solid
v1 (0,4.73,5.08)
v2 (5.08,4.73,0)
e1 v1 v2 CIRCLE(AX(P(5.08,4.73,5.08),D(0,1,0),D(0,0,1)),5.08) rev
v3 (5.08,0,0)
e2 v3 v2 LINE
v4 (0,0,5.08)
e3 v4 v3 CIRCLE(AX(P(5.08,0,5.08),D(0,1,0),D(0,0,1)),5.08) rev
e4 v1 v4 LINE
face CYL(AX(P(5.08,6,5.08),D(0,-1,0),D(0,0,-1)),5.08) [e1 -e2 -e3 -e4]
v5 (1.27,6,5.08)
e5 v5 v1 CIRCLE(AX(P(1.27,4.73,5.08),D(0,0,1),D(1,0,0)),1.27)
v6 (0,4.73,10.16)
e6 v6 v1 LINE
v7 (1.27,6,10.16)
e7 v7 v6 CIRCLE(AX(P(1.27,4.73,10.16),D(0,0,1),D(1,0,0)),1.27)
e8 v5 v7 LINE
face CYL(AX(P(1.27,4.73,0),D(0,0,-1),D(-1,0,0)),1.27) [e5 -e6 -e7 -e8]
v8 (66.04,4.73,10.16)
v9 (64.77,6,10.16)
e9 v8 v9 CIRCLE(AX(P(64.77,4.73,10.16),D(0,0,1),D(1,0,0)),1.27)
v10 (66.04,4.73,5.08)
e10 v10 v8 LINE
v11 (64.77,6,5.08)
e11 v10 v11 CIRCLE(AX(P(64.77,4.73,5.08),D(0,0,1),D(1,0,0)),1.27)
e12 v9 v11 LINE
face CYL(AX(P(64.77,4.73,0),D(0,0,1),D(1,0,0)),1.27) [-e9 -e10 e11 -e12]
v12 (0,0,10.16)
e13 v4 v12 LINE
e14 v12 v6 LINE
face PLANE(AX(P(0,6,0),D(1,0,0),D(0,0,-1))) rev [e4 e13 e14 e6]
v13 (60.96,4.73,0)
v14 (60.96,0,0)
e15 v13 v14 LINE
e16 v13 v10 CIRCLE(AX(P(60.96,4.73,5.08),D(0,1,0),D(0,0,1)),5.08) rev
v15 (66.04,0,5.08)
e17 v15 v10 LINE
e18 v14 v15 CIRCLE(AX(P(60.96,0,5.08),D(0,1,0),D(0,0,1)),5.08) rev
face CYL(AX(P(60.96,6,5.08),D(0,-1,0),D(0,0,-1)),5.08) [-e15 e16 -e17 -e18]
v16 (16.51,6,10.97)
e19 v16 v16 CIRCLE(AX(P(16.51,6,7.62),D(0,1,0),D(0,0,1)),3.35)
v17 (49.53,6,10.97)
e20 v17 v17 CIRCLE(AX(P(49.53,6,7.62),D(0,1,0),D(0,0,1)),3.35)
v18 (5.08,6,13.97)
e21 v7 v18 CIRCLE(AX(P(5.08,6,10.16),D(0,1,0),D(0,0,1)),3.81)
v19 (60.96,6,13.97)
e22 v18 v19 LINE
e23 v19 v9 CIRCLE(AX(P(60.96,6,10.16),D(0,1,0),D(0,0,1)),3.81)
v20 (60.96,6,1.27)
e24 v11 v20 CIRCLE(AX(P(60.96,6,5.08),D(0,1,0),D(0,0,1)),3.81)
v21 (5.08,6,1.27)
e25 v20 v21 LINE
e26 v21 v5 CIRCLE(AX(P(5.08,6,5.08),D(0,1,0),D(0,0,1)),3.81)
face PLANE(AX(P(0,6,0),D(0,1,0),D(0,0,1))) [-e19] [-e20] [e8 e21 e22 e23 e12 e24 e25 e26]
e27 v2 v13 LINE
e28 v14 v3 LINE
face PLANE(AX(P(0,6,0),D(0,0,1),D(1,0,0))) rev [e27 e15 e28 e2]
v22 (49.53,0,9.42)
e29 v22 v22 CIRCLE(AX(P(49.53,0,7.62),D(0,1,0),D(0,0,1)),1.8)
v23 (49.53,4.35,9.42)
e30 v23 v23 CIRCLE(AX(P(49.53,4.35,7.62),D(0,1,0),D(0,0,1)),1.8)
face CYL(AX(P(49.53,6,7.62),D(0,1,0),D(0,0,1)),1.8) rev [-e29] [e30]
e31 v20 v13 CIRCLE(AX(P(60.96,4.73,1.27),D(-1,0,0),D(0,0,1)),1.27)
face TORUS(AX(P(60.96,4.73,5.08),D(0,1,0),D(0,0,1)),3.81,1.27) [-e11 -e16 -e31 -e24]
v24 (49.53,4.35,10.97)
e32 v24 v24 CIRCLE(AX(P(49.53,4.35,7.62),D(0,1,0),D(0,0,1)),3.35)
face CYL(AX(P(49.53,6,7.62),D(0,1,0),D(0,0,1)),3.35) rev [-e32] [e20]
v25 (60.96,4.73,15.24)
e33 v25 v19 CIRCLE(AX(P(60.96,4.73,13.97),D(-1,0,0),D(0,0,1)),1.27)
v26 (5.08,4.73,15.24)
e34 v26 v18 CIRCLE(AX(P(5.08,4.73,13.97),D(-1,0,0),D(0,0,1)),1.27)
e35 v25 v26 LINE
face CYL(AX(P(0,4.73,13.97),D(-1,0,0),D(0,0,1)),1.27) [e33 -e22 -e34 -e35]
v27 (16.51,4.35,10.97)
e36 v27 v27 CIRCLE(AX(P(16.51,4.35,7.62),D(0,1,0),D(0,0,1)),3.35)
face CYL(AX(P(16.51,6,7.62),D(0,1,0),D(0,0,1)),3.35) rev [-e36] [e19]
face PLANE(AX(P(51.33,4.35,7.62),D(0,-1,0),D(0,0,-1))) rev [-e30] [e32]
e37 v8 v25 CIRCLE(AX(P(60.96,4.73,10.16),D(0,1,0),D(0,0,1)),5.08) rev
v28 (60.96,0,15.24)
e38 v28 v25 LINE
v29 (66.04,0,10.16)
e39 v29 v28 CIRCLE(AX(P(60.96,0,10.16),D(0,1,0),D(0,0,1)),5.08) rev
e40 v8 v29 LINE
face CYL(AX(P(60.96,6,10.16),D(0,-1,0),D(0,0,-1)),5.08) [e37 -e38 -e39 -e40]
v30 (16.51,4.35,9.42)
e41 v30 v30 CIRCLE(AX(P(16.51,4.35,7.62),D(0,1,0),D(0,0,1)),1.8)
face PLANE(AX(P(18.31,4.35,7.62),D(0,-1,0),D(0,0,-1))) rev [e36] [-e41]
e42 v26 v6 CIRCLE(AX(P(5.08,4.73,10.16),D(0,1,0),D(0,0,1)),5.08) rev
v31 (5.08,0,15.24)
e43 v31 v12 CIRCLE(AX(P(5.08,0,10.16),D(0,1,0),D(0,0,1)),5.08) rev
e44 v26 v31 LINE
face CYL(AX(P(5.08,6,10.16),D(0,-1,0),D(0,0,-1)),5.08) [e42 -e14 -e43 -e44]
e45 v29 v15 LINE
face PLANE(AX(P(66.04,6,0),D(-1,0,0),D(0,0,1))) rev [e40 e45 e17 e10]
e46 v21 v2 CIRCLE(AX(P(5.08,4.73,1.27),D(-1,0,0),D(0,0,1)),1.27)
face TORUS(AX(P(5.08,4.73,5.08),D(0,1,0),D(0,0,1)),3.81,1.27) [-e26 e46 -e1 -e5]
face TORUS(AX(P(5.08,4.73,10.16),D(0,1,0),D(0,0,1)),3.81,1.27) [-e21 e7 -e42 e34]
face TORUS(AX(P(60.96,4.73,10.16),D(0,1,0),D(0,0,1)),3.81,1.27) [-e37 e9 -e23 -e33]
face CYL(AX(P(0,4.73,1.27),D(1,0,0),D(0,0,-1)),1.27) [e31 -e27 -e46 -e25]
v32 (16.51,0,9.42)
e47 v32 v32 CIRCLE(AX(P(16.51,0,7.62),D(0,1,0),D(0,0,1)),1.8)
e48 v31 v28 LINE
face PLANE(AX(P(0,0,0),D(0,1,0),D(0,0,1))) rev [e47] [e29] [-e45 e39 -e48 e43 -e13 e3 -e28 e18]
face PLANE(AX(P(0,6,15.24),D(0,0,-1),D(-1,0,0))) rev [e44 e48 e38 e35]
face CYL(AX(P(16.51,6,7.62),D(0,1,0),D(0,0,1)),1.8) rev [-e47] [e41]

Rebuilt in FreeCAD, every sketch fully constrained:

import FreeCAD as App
import Part
import Sketcher
Q = App.Units.Quantity


def edges_at(feature, points):
    """Names of the edges that pass closest to the given points."""
    edges = feature.Shape.Edges
    near = lambda p: min(range(len(edges)), key=lambda i: edges[i].distToShape(Part.Vertex(*p))[0])
    return sorted({f"Edge{near(p) + 1}" for p in points})


def add_polygon(sketch, points):
    """Adds a closed chain of lines whose ends are joined by coincident constraints."""
    first, n = sketch.GeometryCount, len(points)
    for a, b in zip(points, points[1:] + points[:1]):
        sketch.addGeometry(Part.LineSegment(App.Vector(*a, 0), App.Vector(*b, 0)), False)
    for i in range(n):
        sketch.addConstraint(Sketcher.Constraint("Coincident", first + i, 2, first + (i + 1) % n, 1))

doc = App.newDocument("Part")
body = doc.addObject("PartDesign::Body", "Body")

sketch1 = body.newObject("Sketcher::SketchObject", "Sketch")
sketch1.AttachmentSupport = (doc.getObject("XZ_Plane"), [""])
sketch1.MapMode = "FlatFace"
add_polygon(sketch1, [(0, 0), (0, 15), (66, 15), (66, 0)])
sketch1.addConstraint(Sketcher.Constraint("Vertical", 0))
sketch1.addConstraint(Sketcher.Constraint("Horizontal", 1))
sketch1.addConstraint(Sketcher.Constraint("Vertical", 2))
sketch1.addConstraint(Sketcher.Constraint("Horizontal", 3))
sketch1.addConstraint(Sketcher.Constraint("Coincident", 3, 2, -1, 1))
sketch1.addConstraint(Sketcher.Constraint("DistanceX", 1, 1, 1, 2, Q("2.6 in")))
sketch1.addConstraint(Sketcher.Constraint("DistanceY", 0, 1, 0, 2, Q("0.6 in")))
pad1 = body.newObject("PartDesign::Pad", "Pad")
pad1.Profile = sketch1
pad1.Length = 6
pad1.Reversed = True

sketch2 = body.newObject("Sketcher::SketchObject", "Sketch001")
sketch2.AttachmentSupport = (doc.getObject("XZ_Plane"), [""])
sketch2.MapMode = "FlatFace"
sketch2.AttachmentOffset = App.Placement(App.Vector(0, 0, -6), App.Rotation())
sketch2.addGeometry(Part.Circle(App.Vector(16.5, 7.6, 0), App.Vector(0, 0, 1), 1.8), False)
sketch2.addGeometry(Part.Circle(App.Vector(49.5, 7.6, 0), App.Vector(0, 0, 1), 1.8), False)
sketch2.addConstraint(Sketcher.Constraint("Equal", 0, 1))
sketch2.addConstraint(Sketcher.Constraint("Horizontal", 0, 3, 1, 3))
sketch2.addConstraint(Sketcher.Constraint("DistanceY", -1, 1, 0, 3, Q("0.3 in")))
sketch2.addConstraint(Sketcher.Constraint("DistanceX", 0, 3, 1, 3, Q("1.3 in")))
sketch2.addConstraint(Sketcher.Constraint("Diameter", 0, 3.6))
sketch2.addConstraint(Sketcher.Constraint("DistanceX", -1, 1, 0, 3, Q("0.65 in")))
doc.recompute()
hole = body.newObject("PartDesign::Hole", "Hole")
hole.Profile = sketch2
hole.ThreadType = "None"
hole.Diameter = 3.6
hole.DepthType = "ThroughAll"
hole.HoleCutType = "Counterbore"
hole.HoleCutDiameter = 6.7
hole.HoleCutDepth = 1.65
hole.Reversed = True
doc.recompute()

fillet = body.newObject("PartDesign::Fillet", "Fillet")
fillet.Base = (hole, edges_at(hole, [
    (0, 3, 0),
    (66.04, 3, 0),
    (66.04, 3, 15.24),
    (0, 3, 15.24),
]))
fillet.Radius = Q("0.2 in")
doc.recompute()

fillet2 = body.newObject("PartDesign::Fillet", "Fillet001")
fillet2.Base = (fillet, edges_at(fillet, [
    (33.02, 6, 15.24),
    (0, 6, 7.62),
    (66.04, 6, 7.62),
    (33.02, 6, 0),
    (64.552, 6, 1.488),
    (64.552, 6, 13.752),
    (1.488, 6, 1.488),
    (1.488, 6, 13.752),
]))
fillet2.Radius = Q("0.05 in")

doc.recompute()
